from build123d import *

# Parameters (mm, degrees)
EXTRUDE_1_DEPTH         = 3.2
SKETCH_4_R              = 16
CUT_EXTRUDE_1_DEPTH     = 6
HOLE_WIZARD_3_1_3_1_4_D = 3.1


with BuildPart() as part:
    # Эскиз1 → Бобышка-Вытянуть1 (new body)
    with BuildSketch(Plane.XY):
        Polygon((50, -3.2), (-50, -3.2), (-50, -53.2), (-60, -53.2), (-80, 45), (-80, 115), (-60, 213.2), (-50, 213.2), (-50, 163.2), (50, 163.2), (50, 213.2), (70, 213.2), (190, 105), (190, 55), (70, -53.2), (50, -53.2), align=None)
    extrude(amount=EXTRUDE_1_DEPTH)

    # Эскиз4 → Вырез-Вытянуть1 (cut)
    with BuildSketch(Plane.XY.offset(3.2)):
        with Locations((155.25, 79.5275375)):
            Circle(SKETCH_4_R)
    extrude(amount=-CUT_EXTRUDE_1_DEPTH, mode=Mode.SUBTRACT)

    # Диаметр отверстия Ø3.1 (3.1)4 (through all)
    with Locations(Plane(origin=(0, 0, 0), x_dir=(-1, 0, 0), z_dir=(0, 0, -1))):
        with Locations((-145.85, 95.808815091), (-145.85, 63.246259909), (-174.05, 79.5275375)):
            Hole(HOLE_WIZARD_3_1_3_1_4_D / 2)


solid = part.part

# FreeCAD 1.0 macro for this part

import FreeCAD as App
import Part
import Sketcher
from FreeCAD import Vector


def add_polygon(sketch, points):
    """Adds a closed chain of lines whose ends are joined by coincident constraints."""
    first, n = sketch.GeometryCount, len(points)
    for a, b in zip(points, points[1:] + points[:1]):
        sketch.addGeometry(Part.LineSegment(App.Vector(*a, 0), App.Vector(*b, 0)), False)
    for i in range(n):
        sketch.addConstraint(Sketcher.Constraint("Coincident", first + i, 2, first + (i + 1) % n, 1))

doc = App.newDocument("Part")
params = doc.addObject("Spreadsheet::Sheet", "Params")
for row, (alias, value) in enumerate([
    ("sketch1_width", "100 mm"),
    ("sketch1_width2", "20 mm"),
    ("sketch1_width3", "10 mm"),
    ("sketch1_height", "50 mm"),
    ("sketch1_height2", "70 mm"),
    ("pad1_length", "3.2 mm"),
    ("sketch2_diameter", "32 mm"),
    ("pocket1_length", "6 mm"),
    ("sketch3_diameter", "3.1 mm"),
    ("hole_diameter", "3.1 mm"),
], start=1):
    params.set(f"A{row}", alias)
    params.set(f"B{row}", "=" + value)
    params.setAlias(f"B{row}", alias)

body = doc.addObject("PartDesign::Body", "Body")

# Sketch on XY plane
sketch1 = body.newObject("Sketcher::SketchObject", "Sketch")
sketch1.AttachmentSupport = (doc.getObject("XY_Plane"), [""])
sketch1.MapMode = "FlatFace"
add_polygon(sketch1, [(-50, -3), (50, -3), (50, -53), (70, -53), (190, 55), (190, 105), (70, 213), (50, 213), (50, 163), (-50, 163), (-50, 213), (-60, 213), (-80, 115), (-80, 45), (-60, -53), (-50, -53)])  # lines 0-15
sketch1.addConstraint(Sketcher.Constraint("Horizontal", 0))
sketch1.addConstraint(Sketcher.Constraint("Vertical", 1))
sketch1.addConstraint(Sketcher.Constraint("Horizontal", 2))
sketch1.addConstraint(Sketcher.Constraint("Vertical", 4))
sketch1.addConstraint(Sketcher.Constraint("Horizontal", 6))
sketch1.addConstraint(Sketcher.Constraint("Vertical", 7))
sketch1.addConstraint(Sketcher.Constraint("Horizontal", 8))
sketch1.addConstraint(Sketcher.Constraint("Vertical", 9))
sketch1.addConstraint(Sketcher.Constraint("Horizontal", 10))
sketch1.addConstraint(Sketcher.Constraint("Vertical", 12))
sketch1.addConstraint(Sketcher.Constraint("Horizontal", 14))
sketch1.addConstraint(Sketcher.Constraint("Vertical", 15))
sketch1.addConstraint(Sketcher.Constraint("Symmetric", 6, 2, 9, 2, -2))
sketch1.addConstraint(Sketcher.Constraint("Symmetric", 1, 2, 14, 2, -2))
sketch1.addConstraint(Sketcher.Constraint("Vertical", 2, 2, 5, 2))
sketch1.addConstraint(Sketcher.Constraint("Vertical", 1, 2, 6, 2))
sketch1.addConstraint(Sketcher.Constraint("Vertical", 10, 2, 13, 2))
sketch1.addConstraint(Sketcher.Constraint("Equal", 1, 4))
sketch1.addConstraint(Sketcher.Constraint("Equal", 4, 7))
sketch1.addConstraint(Sketcher.Constraint("Equal", 3, 5))
sketch1.addConstraint(Sketcher.Constraint("Equal", 11, 13))
sketch1.addConstraint(Sketcher.Constraint("DistanceX", 0, 1, 0, 2, 100.0))
sketch1.addConstraint(Sketcher.Constraint("DistanceX", 2, 1, 2, 2, 20.0))
sketch1.addConstraint(Sketcher.Constraint("DistanceX", 10, 2, 10, 1, 10.0))
sketch1.addConstraint(Sketcher.Constraint("DistanceY", 1, 2, 1, 1, 50.0))
sketch1.addConstraint(Sketcher.Constraint("DistanceY", 12, 2, 12, 1, 70.0))
sketch1.addConstraint(Sketcher.Constraint("DistanceX", -1, 1, 3, 2, 190.0))
sketch1.addConstraint(Sketcher.Constraint("DistanceY", -1, 1, 3, 2, 55.0))
sketch1.addConstraint(Sketcher.Constraint("DistanceX", 11, 2, -1, 1, 80.0))
sketch1.addConstraint(Sketcher.Constraint("DistanceY", 0, 2, -1, 1, 3.2))
sketch1.setExpression("Constraints[37]", "Params.sketch1_width")
sketch1.setExpression("Constraints[38]", "Params.sketch1_width2")
sketch1.setExpression("Constraints[39]", "Params.sketch1_width3")
sketch1.setExpression("Constraints[40]", "Params.sketch1_height")
sketch1.setExpression("Constraints[41]", "Params.sketch1_height2")
pad1 = body.newObject("PartDesign::Pad", "Pad")
pad1.Profile = sketch1
pad1.setExpression("Length", "Params.pad1_length")

# Sketch on XY plane
sketch2 = body.newObject("Sketcher::SketchObject", "Sketch001")
sketch2.AttachmentSupport = (doc.getObject("XY_Plane"), [""])
sketch2.MapMode = "FlatFace"
sketch2.AttachmentOffset = App.Placement(Vector(0, 0, 3.2), App.Rotation())
sketch2.addGeometry(Part.Circle(Vector(155, 80, 0), Vector(0, 0, 1), 16), False)
sketch2.addConstraint(Sketcher.Constraint("Diameter", 0, 32.0))
sketch2.addConstraint(Sketcher.Constraint("DistanceX", -1, 1, 0, 3, 155.25))
sketch2.addConstraint(Sketcher.Constraint("DistanceY", -1, 1, 0, 3, 79.527537))
sketch2.setExpression("Constraints[0]", "Params.sketch2_diameter")
pocket1 = body.newObject("PartDesign::Pocket", "Pocket")
pocket1.Profile = sketch2
pocket1.setExpression("Length", "Params.pocket1_length")

# Sketch on XY plane
sketch3 = body.newObject("Sketcher::SketchObject", "Sketch002")
sketch3.AttachmentSupport = (doc.getObject("XY_Plane"), [""])
sketch3.MapMode = "FlatFace"
sketch3.addGeometry(Part.Circle(Vector(145.8, 95.8, 0), Vector(0, 0, 1), 1.6), False)
sketch3.addGeometry(Part.Circle(Vector(145.8, 63.2, 0), Vector(0, 0, 1), 1.6), False)
sketch3.addGeometry(Part.Circle(Vector(174.1, 79.5, 0), Vector(0, 0, 1), 1.6), False)
sketch3.addConstraint(Sketcher.Constraint("Equal", 0, 1))
sketch3.addConstraint(Sketcher.Constraint("Equal", 1, 2))
sketch3.addConstraint(Sketcher.Constraint("Vertical", 0, 3, 1, 3))
sketch3.addConstraint(Sketcher.Constraint("Diameter", 0, 3.1))
sketch3.addConstraint(Sketcher.Constraint("DistanceX", 1, 3, 2, 3, 28.2))
sketch3.addConstraint(Sketcher.Constraint("DistanceX", -1, 1, 0, 3, 145.85))
sketch3.addConstraint(Sketcher.Constraint("DistanceY", -1, 1, 1, 3, 63.24626))
sketch3.addConstraint(Sketcher.Constraint("DistanceY", -1, 1, 0, 3, 95.808815))
sketch3.addConstraint(Sketcher.Constraint("DistanceY", -1, 1, 2, 3, 79.527537))
sketch3.setExpression("Constraints[3]", "Params.sketch3_diameter")
doc.recompute()
hole = body.newObject("PartDesign::Hole", "Hole")
hole.Profile = sketch3
hole.ThreadType = "None"
hole.setExpression("Diameter", "Params.hole_diameter")
hole.DepthType = "ThroughAll"
hole.Reversed = True

doc.recompute()
